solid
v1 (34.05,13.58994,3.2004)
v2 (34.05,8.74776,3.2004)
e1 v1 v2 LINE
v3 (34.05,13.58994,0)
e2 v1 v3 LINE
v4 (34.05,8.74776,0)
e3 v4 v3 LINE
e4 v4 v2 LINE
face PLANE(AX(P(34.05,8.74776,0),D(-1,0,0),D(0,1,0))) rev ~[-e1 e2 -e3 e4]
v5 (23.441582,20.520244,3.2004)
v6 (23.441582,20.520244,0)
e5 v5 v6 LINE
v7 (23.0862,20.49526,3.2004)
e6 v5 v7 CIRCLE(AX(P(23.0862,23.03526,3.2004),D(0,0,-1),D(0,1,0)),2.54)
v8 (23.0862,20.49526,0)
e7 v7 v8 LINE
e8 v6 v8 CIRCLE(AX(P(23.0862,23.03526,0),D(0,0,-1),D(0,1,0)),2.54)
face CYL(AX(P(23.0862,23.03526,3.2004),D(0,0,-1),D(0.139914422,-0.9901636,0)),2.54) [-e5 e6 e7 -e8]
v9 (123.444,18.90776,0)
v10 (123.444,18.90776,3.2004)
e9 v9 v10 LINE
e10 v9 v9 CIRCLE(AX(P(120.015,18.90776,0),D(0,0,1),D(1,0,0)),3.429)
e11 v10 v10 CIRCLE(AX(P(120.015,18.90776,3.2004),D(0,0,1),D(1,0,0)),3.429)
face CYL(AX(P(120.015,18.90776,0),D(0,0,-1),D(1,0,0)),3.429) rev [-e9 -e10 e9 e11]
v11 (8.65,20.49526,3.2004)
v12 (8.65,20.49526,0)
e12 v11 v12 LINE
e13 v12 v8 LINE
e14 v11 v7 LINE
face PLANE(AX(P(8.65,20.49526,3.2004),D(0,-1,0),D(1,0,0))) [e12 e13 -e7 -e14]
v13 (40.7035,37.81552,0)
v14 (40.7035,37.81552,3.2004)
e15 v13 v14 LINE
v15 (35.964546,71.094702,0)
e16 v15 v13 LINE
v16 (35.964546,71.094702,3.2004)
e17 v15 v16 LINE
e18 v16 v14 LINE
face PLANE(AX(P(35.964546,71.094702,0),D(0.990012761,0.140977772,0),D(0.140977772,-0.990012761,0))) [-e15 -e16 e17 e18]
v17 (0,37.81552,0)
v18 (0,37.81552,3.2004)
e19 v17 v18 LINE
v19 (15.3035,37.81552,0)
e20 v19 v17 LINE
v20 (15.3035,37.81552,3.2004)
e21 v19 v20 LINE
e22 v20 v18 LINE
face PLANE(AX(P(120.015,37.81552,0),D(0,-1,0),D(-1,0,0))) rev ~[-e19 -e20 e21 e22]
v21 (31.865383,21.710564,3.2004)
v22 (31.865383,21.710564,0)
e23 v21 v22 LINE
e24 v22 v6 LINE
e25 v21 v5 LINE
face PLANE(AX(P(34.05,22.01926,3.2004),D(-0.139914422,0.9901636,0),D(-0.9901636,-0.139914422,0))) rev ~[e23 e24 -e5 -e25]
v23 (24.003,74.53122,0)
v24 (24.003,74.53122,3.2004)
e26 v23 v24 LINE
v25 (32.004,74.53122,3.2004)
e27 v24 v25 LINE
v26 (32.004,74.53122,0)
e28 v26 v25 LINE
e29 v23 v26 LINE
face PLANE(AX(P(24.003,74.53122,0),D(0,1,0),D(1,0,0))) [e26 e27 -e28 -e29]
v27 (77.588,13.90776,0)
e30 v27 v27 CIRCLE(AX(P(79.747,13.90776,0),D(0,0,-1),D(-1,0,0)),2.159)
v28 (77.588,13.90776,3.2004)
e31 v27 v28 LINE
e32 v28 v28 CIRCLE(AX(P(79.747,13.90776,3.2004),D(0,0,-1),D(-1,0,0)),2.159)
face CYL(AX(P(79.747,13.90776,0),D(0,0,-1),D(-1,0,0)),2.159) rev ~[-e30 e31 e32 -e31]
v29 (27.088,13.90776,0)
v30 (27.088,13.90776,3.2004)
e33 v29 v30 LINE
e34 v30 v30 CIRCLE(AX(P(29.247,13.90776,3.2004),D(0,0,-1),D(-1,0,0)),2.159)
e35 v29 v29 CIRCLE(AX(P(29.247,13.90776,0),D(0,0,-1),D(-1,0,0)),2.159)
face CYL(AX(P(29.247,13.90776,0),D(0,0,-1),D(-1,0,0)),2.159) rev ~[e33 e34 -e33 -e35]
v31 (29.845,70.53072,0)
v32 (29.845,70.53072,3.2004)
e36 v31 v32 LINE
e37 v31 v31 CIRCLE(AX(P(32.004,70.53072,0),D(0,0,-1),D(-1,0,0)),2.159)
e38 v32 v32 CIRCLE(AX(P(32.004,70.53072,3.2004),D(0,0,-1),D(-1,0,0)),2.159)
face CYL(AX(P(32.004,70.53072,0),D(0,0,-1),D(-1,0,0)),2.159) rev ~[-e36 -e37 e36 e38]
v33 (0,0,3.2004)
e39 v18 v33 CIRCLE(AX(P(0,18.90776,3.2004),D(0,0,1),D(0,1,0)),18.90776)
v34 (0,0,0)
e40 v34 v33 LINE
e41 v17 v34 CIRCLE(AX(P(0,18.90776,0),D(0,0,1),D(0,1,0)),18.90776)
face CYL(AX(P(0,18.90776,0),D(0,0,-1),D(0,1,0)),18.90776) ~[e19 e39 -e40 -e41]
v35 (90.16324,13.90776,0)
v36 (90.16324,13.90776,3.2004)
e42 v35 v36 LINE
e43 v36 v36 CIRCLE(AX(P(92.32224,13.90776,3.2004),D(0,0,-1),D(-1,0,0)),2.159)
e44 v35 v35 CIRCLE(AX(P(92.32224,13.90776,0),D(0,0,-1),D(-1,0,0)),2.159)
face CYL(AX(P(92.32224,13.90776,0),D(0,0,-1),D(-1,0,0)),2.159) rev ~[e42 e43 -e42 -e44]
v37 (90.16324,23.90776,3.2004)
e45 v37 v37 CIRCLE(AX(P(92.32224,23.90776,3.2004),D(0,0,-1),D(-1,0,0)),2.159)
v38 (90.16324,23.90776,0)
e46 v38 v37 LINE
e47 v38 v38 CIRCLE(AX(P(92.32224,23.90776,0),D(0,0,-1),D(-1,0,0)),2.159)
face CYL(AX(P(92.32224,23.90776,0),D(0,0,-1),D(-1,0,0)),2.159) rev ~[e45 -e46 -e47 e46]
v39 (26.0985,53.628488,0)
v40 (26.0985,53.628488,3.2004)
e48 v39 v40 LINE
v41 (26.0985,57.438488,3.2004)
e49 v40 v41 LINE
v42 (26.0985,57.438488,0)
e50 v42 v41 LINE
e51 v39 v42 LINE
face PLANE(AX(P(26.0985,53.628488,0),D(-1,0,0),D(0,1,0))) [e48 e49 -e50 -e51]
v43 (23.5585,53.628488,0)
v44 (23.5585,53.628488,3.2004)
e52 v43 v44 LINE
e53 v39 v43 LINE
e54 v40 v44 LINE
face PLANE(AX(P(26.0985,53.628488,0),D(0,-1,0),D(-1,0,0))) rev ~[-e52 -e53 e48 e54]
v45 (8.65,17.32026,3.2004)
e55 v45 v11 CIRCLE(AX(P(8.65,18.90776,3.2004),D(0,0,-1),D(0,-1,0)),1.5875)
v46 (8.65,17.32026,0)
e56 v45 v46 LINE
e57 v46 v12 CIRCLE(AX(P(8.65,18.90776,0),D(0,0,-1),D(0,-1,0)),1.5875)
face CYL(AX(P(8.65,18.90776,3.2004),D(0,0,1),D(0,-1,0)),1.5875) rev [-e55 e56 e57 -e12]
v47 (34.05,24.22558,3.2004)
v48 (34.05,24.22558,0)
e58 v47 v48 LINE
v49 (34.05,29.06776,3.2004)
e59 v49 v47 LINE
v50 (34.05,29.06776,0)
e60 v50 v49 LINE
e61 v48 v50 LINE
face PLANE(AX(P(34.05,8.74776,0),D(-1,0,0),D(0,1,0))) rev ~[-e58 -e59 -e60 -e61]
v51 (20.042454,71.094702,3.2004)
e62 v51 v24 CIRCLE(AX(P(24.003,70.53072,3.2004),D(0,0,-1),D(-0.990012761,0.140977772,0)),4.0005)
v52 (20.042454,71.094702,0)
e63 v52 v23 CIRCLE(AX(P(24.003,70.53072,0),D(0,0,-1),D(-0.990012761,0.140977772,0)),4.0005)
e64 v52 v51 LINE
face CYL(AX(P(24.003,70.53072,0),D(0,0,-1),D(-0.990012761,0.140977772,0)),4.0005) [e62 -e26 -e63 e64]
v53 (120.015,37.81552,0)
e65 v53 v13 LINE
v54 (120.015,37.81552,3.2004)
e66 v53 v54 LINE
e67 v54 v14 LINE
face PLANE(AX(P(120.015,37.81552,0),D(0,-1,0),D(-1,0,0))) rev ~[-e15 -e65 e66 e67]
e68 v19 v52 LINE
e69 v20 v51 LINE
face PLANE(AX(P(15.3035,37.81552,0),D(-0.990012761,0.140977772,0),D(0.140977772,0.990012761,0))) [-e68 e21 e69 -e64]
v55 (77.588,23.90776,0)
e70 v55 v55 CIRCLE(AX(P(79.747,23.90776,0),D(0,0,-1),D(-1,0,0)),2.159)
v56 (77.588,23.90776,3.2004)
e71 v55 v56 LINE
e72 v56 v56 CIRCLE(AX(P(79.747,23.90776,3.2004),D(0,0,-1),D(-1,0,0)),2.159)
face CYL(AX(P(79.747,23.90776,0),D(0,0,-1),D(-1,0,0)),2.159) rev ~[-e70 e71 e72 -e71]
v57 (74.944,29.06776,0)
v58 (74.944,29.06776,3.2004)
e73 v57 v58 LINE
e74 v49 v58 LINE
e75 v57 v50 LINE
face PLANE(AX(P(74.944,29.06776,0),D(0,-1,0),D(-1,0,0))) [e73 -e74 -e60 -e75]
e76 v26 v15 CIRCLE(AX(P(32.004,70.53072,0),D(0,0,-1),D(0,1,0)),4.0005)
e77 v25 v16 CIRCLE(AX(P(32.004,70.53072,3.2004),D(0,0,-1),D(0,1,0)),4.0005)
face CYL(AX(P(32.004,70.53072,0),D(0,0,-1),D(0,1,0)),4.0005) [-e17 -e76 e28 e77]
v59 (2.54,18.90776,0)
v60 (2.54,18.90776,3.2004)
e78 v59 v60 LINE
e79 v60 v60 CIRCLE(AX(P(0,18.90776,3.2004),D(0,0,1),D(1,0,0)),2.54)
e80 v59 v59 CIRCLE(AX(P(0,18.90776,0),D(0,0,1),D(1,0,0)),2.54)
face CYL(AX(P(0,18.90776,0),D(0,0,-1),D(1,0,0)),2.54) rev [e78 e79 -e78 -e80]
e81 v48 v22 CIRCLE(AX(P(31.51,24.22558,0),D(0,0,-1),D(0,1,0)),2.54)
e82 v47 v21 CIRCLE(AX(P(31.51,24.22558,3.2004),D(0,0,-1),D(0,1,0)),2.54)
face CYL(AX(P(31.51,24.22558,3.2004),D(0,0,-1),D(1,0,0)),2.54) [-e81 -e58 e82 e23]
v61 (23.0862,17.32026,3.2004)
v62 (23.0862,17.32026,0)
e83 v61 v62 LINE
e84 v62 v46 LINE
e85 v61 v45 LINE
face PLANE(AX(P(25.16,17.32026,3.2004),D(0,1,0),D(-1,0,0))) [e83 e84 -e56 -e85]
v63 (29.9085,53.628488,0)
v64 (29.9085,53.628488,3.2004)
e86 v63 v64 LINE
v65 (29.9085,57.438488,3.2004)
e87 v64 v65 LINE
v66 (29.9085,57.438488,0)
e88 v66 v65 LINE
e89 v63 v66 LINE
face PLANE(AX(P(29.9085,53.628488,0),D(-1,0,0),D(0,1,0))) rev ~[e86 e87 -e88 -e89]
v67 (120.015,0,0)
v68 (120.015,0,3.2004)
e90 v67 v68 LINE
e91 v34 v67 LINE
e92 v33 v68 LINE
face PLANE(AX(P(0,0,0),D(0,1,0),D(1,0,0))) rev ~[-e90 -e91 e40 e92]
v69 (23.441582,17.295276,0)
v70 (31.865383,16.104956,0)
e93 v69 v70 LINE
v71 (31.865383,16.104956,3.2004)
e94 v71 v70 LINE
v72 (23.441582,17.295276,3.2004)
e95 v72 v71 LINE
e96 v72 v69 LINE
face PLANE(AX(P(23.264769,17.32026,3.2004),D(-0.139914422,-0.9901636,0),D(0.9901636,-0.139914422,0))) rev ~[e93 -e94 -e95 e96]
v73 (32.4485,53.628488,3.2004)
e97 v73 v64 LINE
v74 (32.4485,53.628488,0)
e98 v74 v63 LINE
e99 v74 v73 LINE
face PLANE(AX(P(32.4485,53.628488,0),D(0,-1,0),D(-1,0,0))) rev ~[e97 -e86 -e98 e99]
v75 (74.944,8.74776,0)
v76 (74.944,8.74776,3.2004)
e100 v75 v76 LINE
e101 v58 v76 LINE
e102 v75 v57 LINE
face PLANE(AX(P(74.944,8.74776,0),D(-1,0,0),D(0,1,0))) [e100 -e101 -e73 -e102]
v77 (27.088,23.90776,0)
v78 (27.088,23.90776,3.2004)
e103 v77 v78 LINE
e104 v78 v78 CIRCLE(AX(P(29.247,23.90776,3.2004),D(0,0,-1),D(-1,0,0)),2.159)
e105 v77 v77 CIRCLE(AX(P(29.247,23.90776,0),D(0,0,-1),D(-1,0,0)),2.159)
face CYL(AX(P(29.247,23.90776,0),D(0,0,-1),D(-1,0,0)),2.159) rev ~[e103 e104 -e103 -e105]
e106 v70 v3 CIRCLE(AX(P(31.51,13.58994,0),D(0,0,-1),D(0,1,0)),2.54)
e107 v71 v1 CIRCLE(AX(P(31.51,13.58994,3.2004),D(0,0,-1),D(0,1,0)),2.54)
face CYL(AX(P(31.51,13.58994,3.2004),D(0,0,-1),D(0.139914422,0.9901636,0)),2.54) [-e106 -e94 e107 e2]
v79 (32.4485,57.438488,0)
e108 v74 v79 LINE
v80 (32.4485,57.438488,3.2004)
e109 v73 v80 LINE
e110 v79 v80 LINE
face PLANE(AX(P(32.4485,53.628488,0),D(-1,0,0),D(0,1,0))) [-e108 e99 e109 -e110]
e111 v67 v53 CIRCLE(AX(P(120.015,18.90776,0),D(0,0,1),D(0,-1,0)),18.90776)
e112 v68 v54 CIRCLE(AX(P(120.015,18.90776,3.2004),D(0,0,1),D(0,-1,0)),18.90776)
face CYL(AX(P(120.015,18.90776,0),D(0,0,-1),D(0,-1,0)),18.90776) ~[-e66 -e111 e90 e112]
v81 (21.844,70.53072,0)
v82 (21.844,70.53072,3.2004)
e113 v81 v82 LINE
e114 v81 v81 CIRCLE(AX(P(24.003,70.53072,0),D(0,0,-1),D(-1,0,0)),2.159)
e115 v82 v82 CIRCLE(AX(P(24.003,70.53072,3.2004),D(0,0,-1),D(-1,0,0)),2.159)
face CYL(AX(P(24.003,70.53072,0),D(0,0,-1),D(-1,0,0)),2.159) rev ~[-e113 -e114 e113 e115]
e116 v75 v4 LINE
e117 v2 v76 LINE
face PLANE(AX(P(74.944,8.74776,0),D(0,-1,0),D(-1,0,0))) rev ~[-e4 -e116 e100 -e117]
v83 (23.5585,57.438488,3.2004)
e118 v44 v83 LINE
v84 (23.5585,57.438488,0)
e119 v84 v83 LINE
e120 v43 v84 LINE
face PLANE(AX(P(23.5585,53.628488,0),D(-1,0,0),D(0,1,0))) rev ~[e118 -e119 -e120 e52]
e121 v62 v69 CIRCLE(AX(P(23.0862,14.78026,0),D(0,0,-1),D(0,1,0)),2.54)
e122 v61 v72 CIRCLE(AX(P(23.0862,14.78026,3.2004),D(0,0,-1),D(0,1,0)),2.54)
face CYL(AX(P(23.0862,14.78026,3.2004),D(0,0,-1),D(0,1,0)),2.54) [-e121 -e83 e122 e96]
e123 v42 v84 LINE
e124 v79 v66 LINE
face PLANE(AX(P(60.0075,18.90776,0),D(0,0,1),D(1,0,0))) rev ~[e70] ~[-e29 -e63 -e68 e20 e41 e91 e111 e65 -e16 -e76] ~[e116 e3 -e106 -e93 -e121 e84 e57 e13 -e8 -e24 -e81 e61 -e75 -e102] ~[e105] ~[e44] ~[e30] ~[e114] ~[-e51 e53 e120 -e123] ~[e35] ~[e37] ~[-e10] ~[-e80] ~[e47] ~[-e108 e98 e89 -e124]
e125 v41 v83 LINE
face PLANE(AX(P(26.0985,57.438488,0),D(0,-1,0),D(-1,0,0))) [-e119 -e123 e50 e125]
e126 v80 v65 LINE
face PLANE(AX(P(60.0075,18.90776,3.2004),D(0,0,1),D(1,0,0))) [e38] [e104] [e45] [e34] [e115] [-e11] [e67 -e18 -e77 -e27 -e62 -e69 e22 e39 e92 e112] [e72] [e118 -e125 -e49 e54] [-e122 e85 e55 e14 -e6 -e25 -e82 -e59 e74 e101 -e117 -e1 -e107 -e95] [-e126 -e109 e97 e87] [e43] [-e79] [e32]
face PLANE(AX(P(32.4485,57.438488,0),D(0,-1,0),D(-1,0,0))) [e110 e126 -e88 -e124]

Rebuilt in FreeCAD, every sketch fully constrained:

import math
import FreeCAD as App
import Part
import Sketcher
Q = App.Units.Quantity


def edges_at(feature, points):
    """Names of the edges that pass closest to the given points."""
    edges = feature.Shape.Edges
    near = lambda p: min(range(len(edges)), key=lambda i: edges[i].distToShape(Part.Vertex(*p))[0])
    return sorted({f"Edge{near(p) + 1}" for p in points})


def add_polygon(sketch, points):
    """Adds a closed chain of lines whose ends are joined by coincident constraints."""
    first, n = sketch.GeometryCount, len(points)
    for a, b in zip(points, points[1:] + points[:1]):
        sketch.addGeometry(Part.LineSegment(App.Vector(*a, 0), App.Vector(*b, 0)), False)
    for i in range(n):
        sketch.addConstraint(Sketcher.Constraint("Coincident", first + i, 2, first + (i + 1) % n, 1))

doc = App.newDocument("Part")
body = doc.addObject("PartDesign::Body", "Body")

# Sketch on XY plane
sketch1 = body.newObject("Sketcher::SketchObject", "Sketch")
sketch1.AttachmentSupport = (doc.getObject("XY_Plane"), [""])
sketch1.MapMode = "FlatFace"
sketch1.addGeometry([
    Part.LineSegment(App.Vector(120.015, 37.81552, 0), App.Vector(0, 37.81552, 0)),  # 0
    Part.ArcOfCircle(Part.Circle(App.Vector(0, 18.90776, 0), App.Vector(0, 0, 1), 18.90776), math.radians(90), math.radians(270)),  # 1
    Part.LineSegment(App.Vector(0, 0, 0), App.Vector(120.015, 0, 0)),  # 2
    Part.ArcOfCircle(Part.Circle(App.Vector(120.015, 18.90776, 0), App.Vector(0, 0, 1), 18.90776), math.radians(-90), math.radians(90)),  # 3
    Part.Circle(App.Vector(0, 18.90776, 0), App.Vector(0, 0, 1), 2.54),  # 4
    Part.Circle(App.Vector(120.015, 18.90776, 0), App.Vector(0, 0, 1), 3.429),  # 5
], False)
sketch1.addConstraint([
    Sketcher.Constraint("Tangent", 0, 2, 1, 1),
    Sketcher.Constraint("Tangent", 1, 2, 2, 1),
    Sketcher.Constraint("Tangent", 2, 2, 3, 1),
    Sketcher.Constraint("Tangent", 3, 2, 0, 1),
    Sketcher.Constraint("Horizontal", 0),
    Sketcher.Constraint("Horizontal", 2),
    Sketcher.Constraint("Coincident", 1, 2, -1, 1),
    Sketcher.Constraint("Coincident", 4, 3, 1, 3),
    Sketcher.Constraint("Coincident", 5, 3, 3, 3),
    Sketcher.Constraint("Diameter", 4, Q("0.2 in")),
    Sketcher.Constraint("Diameter", 5, Q("0.27 in")),
    Sketcher.Constraint("Radius", 1, Q("0.7444 in")),
    Sketcher.Constraint("DistanceX", 0, 2, 0, 1, Q("4.725 in")),
])
pad1 = body.newObject("PartDesign::Pad", "Pad")
pad1.Profile = sketch1
pad1.Length = Q("0.126 in")

# Sketch on XY plane
sketch2 = body.newObject("Sketcher::SketchObject", "Sketch001")
sketch2.AttachmentSupport = (doc.getObject("XY_Plane"), [""])
sketch2.MapMode = "FlatFace"
sketch2.addGeometry(Part.Circle(App.Vector(79.747, 23.90776, 0), App.Vector(0, 0, 1), 2.159), False)  # 0
sketch2.addGeometry(Part.Circle(App.Vector(29.247, 13.90776, 0), App.Vector(0, 0, 1), 2.159), False)  # 1
sketch2.addGeometry(Part.Circle(App.Vector(29.247, 23.90776, 0), App.Vector(0, 0, 1), 2.159), False)  # 2
sketch2.addGeometry(Part.Circle(App.Vector(79.747, 13.90776, 0), App.Vector(0, 0, 1), 2.159), False)  # 3
sketch2.addGeometry(Part.Circle(App.Vector(92.32224, 23.90776, 0), App.Vector(0, 0, 1), 2.159), False)  # 4
sketch2.addGeometry(Part.Circle(App.Vector(92.32224, 13.90776, 0), App.Vector(0, 0, 1), 2.159), False)  # 5
add_polygon(sketch2, [(74.944, 29.06776), (74.944, 8.74776), (34.05, 8.74776), (34.05, 29.06776)])  # lines 6-9
sketch2.addConstraint([
    Sketcher.Constraint("Vertical", 6),
    Sketcher.Constraint("Horizontal", 7),
    Sketcher.Constraint("Vertical", 8),
    Sketcher.Constraint("Horizontal", 9),
    Sketcher.Constraint("Equal", 0, 1),
    Sketcher.Constraint("Equal", 1, 2),
    Sketcher.Constraint("Equal", 2, 3),
    Sketcher.Constraint("Equal", 3, 4),
    Sketcher.Constraint("Equal", 4, 5),
    Sketcher.Constraint("Horizontal", 0, 3, 2, 3),
    Sketcher.Constraint("Horizontal", 1, 3, 3, 3),
    Sketcher.Constraint("Horizontal", 2, 3, 4, 3),
    Sketcher.Constraint("Horizontal", 3, 3, 5, 3),
    Sketcher.Constraint("Vertical", 1, 3, 2, 3),
    Sketcher.Constraint("Vertical", 0, 3, 3, 3),
    Sketcher.Constraint("Vertical", 4, 3, 5, 3),
    Sketcher.Constraint("Diameter", 0, Q("0.17 in")),
    Sketcher.Constraint("DistanceY", 6, 2, 6, 1, Q("0.8 in")),
    Sketcher.Constraint("DistanceX", 7, 2, 7, 1, Q("1.61 in")),
    Sketcher.Constraint("DistanceY", -1, 1, 6, 2, Q("0.3444 in")),
    Sketcher.Constraint("DistanceX", -1, 1, 0, 3, 79.747),
    Sketcher.Constraint("DistanceX", -1, 1, 1, 3, 29.247),
    Sketcher.Constraint("DistanceX", -1, 1, 6, 2, 74.944),
    Sketcher.Constraint("DistanceY", 1, 3, 0, 3, 10.0),
    Sketcher.Constraint("DistanceY", 6, 2, 3, 3, 5.16),
    Sketcher.Constraint("DistanceX", -1, 1, 4, 3, 92.32224),
])
pocket1 = body.newObject("PartDesign::Pocket", "Pocket")
pocket1.Profile = sketch2
pocket1.Type = "ThroughAll"
pocket1.Reversed = True

# Sketch on XY plane
sketch3 = body.newObject("Sketcher::SketchObject", "Sketch002")
sketch3.AttachmentSupport = (doc.getObject("XY_Plane"), [""])
sketch3.MapMode = "FlatFace"
sketch3.AttachmentOffset = App.Placement(App.Vector(0, 0, 0.126 * 25.4), App.Rotation())
sketch3.addGeometry([
    Part.LineSegment(App.Vector(25.16, 20.49526, 0), App.Vector(8.65, 20.49526, 0)),
    Part.ArcOfCircle(Part.Circle(App.Vector(8.65, 18.90776, 0), App.Vector(0, 0, 1), 1.5875), math.radians(90), math.radians(270)),
    Part.LineSegment(App.Vector(8.65, 17.32026, 0), App.Vector(25.16, 17.32026, 0)),
    Part.ArcOfCircle(Part.Circle(App.Vector(25.16, 18.90776, 0), App.Vector(0, 0, 1), 1.5875), math.radians(-90), math.radians(90)),
], False)
sketch3.addConstraint([
    Sketcher.Constraint("Tangent", 0, 2, 1, 1),
    Sketcher.Constraint("Tangent", 1, 2, 2, 1),
    Sketcher.Constraint("Tangent", 2, 2, 3, 1),
    Sketcher.Constraint("Tangent", 3, 2, 0, 1),
    Sketcher.Constraint("Horizontal", 0),
    Sketcher.Constraint("Horizontal", 2),
    Sketcher.Constraint("Radius", 1, Q("0.0625 in")),
    Sketcher.Constraint("DistanceX", 0, 2, 0, 1, Q("0.65 in")),
    Sketcher.Constraint("DistanceY", -1, 1, 1, 3, Q("0.7444 in")),
    Sketcher.Constraint("DistanceX", -1, 1, 1, 3, 8.65),
])
pocket2 = body.newObject("PartDesign::Pocket", "Pocket001")
pocket2.Profile = sketch3
pocket2.Length = Q("0.126 in")

# Sketch on XY plane
sketch4 = body.newObject("Sketcher::SketchObject", "Sketch003")
sketch4.AttachmentSupport = (doc.getObject("XY_Plane"), [""])
sketch4.MapMode = "FlatFace"
sketch4.AttachmentOffset = App.Placement(App.Vector(0, 0, 0.126 * 25.4), App.Rotation())
add_polygon(sketch4, [(34.05, 15.79626), (34.05, 22.01926), (23.264769, 20.49526), (23.264769, 17.32026)])  # lines 0-3
sketch4.addConstraint([
    Sketcher.Constraint("Vertical", 0),
    Sketcher.Constraint("Vertical", 2),
    Sketcher.Constraint("Equal", 1, 3),
    Sketcher.Constraint("DistanceY", 0, 1, 0, 2, Q("0.245 in")),
    Sketcher.Constraint("DistanceY", 2, 2, 2, 1, Q("0.125 in")),
    Sketcher.Constraint("DistanceY", -1, 1, 0, 2, Q("0.8669 in")),
    Sketcher.Constraint("DistanceX", -1, 1, 0, 2, 34.05),
    Sketcher.Constraint("DistanceX", -1, 1, 1, 2, 23.264769),
])
pocket3 = body.newObject("PartDesign::Pocket", "Pocket002")
pocket3.Profile = sketch4
pocket3.Length = Q("0.126 in")

# Sketch on XY plane
sketch5 = body.newObject("Sketcher::SketchObject", "Sketch004")
sketch5.AttachmentSupport = (doc.getObject("XY_Plane"), [""])
sketch5.MapMode = "FlatFace"
sketch5.addGeometry(Part.LineSegment(App.Vector(40.7035, 37.81552, 0), App.Vector(15.3035, 37.81552, 0)), False)  # 0
sketch5.addGeometry(Part.LineSegment(App.Vector(15.3035, 37.81552, 0), App.Vector(20.042454, 71.094702, 0)), False)  # 1
sketch5.addGeometry(Part.ArcOfCircle(Part.Circle(App.Vector(24.003, 70.53072, 0), App.Vector(0, 0, 1), 4.0005), math.radians(90), math.radians(171.89557)), False)  # 2
sketch5.addGeometry(Part.LineSegment(App.Vector(24.003, 74.53122, 0), App.Vector(32.004, 74.53122, 0)), False)  # 3
sketch5.addGeometry(Part.ArcOfCircle(Part.Circle(App.Vector(32.004, 70.53072, 0), App.Vector(0, 0, 1), 4.0005), math.radians(8.10443), math.radians(90)), False)  # 4
sketch5.addGeometry(Part.LineSegment(App.Vector(35.964546, 71.094702, 0), App.Vector(40.7035, 37.81552, 0)), False)  # 5
add_polygon(sketch5, [(29.9085, 53.628488), (32.4485, 53.628488), (32.4485, 57.438488), (29.9085, 57.438488)])  # lines 6-9
add_polygon(sketch5, [(23.5585, 53.628488), (26.0985, 53.628488), (26.0985, 57.438488), (23.5585, 57.438488)])  # lines 10-13
sketch5.addGeometry(Part.Circle(App.Vector(32.004, 70.53072, 0), App.Vector(0, 0, 1), 2.159), False)  # 14
sketch5.addGeometry(Part.Circle(App.Vector(24.003, 70.53072, 0), App.Vector(0, 0, 1), 2.159), False)  # 15
sketch5.addConstraint([
    Sketcher.Constraint("Coincident", 0, 2, 1, 1),
    Sketcher.Constraint("Tangent", 1, 2, 2, 2),
    Sketcher.Constraint("Tangent", 2, 1, 3, 1),
    Sketcher.Constraint("Tangent", 3, 2, 4, 2),
    Sketcher.Constraint("Tangent", 4, 1, 5, 1),
    Sketcher.Constraint("Coincident", 5, 2, 0, 1),
    Sketcher.Constraint("Horizontal", 0),
    Sketcher.Constraint("Horizontal", 3),
    Sketcher.Constraint("Horizontal", 6),
    Sketcher.Constraint("Vertical", 7),
    Sketcher.Constraint("Horizontal", 8),
    Sketcher.Constraint("Vertical", 9),
    Sketcher.Constraint("Horizontal", 10),
    Sketcher.Constraint("Vertical", 11),
    Sketcher.Constraint("Horizontal", 12),
    Sketcher.Constraint("Vertical", 13),
    Sketcher.Constraint("Coincident", 14, 3, 4, 3),
    Sketcher.Constraint("Coincident", 15, 3, 2, 3),
    Sketcher.Constraint("Equal", 2, 4),
    Sketcher.Constraint("Equal", 14, 15),
    Sketcher.Constraint("Horizontal", 1, 2, 4, 1),
    Sketcher.Constraint("Horizontal", 9, 2, 10, 2),
    Sketcher.Constraint("Horizontal", 8, 2, 11, 2),
    Sketcher.Constraint("Equal", 8, 10),
    Sketcher.Constraint("Diameter", 14, Q("0.17 in")),
    Sketcher.Constraint("DistanceX", 0, 2, 0, 1, Q("1 in")),
    Sketcher.Constraint("DistanceX", 6, 1, 6, 2, Q("0.1 in")),
    Sketcher.Constraint("DistanceY", 7, 1, 7, 2, Q("0.15 in")),
    Sketcher.Constraint("Radius", 2, Q("0.1575 in")),
    Sketcher.Constraint("DistanceX", 3, 1, 3, 2, Q("0.315 in")),
    Sketcher.Constraint("DistanceX", -1, 1, 4, 3, Q("1.26 in")),
    Sketcher.Constraint("DistanceX", 10, 2, 9, 2, Q("0.15 in")),
    Sketcher.Constraint("DistanceY", 0, 2, 2, 3, Q("1.288 in")),
    Sketcher.Constraint("DistanceX", 6, 2, 5, 2, Q("0.325 in")),
    Sketcher.Constraint("DistanceY", -1, 1, 2, 3, Q("2.7768 in")),
    Sketcher.Constraint("DistanceY", -1, 1, 6, 2, 53.628488),
])
pad2 = body.newObject("PartDesign::Pad", "Pad001")
pad2.Profile = sketch5
pad2.Length = Q("0.126 in")
doc.recompute()

fillet = body.newObject("PartDesign::Fillet", "Fillet")
fillet.Base = (pad2, edges_at(pad2, [
    (34.05, 22.019, 1.6),
    (23.265, 20.495, 1.6),
    (23.265, 17.32, 1.6),
    (34.05, 15.796, 1.6),
]))
fillet.Radius = Q("0.1 in")

doc.recompute()
